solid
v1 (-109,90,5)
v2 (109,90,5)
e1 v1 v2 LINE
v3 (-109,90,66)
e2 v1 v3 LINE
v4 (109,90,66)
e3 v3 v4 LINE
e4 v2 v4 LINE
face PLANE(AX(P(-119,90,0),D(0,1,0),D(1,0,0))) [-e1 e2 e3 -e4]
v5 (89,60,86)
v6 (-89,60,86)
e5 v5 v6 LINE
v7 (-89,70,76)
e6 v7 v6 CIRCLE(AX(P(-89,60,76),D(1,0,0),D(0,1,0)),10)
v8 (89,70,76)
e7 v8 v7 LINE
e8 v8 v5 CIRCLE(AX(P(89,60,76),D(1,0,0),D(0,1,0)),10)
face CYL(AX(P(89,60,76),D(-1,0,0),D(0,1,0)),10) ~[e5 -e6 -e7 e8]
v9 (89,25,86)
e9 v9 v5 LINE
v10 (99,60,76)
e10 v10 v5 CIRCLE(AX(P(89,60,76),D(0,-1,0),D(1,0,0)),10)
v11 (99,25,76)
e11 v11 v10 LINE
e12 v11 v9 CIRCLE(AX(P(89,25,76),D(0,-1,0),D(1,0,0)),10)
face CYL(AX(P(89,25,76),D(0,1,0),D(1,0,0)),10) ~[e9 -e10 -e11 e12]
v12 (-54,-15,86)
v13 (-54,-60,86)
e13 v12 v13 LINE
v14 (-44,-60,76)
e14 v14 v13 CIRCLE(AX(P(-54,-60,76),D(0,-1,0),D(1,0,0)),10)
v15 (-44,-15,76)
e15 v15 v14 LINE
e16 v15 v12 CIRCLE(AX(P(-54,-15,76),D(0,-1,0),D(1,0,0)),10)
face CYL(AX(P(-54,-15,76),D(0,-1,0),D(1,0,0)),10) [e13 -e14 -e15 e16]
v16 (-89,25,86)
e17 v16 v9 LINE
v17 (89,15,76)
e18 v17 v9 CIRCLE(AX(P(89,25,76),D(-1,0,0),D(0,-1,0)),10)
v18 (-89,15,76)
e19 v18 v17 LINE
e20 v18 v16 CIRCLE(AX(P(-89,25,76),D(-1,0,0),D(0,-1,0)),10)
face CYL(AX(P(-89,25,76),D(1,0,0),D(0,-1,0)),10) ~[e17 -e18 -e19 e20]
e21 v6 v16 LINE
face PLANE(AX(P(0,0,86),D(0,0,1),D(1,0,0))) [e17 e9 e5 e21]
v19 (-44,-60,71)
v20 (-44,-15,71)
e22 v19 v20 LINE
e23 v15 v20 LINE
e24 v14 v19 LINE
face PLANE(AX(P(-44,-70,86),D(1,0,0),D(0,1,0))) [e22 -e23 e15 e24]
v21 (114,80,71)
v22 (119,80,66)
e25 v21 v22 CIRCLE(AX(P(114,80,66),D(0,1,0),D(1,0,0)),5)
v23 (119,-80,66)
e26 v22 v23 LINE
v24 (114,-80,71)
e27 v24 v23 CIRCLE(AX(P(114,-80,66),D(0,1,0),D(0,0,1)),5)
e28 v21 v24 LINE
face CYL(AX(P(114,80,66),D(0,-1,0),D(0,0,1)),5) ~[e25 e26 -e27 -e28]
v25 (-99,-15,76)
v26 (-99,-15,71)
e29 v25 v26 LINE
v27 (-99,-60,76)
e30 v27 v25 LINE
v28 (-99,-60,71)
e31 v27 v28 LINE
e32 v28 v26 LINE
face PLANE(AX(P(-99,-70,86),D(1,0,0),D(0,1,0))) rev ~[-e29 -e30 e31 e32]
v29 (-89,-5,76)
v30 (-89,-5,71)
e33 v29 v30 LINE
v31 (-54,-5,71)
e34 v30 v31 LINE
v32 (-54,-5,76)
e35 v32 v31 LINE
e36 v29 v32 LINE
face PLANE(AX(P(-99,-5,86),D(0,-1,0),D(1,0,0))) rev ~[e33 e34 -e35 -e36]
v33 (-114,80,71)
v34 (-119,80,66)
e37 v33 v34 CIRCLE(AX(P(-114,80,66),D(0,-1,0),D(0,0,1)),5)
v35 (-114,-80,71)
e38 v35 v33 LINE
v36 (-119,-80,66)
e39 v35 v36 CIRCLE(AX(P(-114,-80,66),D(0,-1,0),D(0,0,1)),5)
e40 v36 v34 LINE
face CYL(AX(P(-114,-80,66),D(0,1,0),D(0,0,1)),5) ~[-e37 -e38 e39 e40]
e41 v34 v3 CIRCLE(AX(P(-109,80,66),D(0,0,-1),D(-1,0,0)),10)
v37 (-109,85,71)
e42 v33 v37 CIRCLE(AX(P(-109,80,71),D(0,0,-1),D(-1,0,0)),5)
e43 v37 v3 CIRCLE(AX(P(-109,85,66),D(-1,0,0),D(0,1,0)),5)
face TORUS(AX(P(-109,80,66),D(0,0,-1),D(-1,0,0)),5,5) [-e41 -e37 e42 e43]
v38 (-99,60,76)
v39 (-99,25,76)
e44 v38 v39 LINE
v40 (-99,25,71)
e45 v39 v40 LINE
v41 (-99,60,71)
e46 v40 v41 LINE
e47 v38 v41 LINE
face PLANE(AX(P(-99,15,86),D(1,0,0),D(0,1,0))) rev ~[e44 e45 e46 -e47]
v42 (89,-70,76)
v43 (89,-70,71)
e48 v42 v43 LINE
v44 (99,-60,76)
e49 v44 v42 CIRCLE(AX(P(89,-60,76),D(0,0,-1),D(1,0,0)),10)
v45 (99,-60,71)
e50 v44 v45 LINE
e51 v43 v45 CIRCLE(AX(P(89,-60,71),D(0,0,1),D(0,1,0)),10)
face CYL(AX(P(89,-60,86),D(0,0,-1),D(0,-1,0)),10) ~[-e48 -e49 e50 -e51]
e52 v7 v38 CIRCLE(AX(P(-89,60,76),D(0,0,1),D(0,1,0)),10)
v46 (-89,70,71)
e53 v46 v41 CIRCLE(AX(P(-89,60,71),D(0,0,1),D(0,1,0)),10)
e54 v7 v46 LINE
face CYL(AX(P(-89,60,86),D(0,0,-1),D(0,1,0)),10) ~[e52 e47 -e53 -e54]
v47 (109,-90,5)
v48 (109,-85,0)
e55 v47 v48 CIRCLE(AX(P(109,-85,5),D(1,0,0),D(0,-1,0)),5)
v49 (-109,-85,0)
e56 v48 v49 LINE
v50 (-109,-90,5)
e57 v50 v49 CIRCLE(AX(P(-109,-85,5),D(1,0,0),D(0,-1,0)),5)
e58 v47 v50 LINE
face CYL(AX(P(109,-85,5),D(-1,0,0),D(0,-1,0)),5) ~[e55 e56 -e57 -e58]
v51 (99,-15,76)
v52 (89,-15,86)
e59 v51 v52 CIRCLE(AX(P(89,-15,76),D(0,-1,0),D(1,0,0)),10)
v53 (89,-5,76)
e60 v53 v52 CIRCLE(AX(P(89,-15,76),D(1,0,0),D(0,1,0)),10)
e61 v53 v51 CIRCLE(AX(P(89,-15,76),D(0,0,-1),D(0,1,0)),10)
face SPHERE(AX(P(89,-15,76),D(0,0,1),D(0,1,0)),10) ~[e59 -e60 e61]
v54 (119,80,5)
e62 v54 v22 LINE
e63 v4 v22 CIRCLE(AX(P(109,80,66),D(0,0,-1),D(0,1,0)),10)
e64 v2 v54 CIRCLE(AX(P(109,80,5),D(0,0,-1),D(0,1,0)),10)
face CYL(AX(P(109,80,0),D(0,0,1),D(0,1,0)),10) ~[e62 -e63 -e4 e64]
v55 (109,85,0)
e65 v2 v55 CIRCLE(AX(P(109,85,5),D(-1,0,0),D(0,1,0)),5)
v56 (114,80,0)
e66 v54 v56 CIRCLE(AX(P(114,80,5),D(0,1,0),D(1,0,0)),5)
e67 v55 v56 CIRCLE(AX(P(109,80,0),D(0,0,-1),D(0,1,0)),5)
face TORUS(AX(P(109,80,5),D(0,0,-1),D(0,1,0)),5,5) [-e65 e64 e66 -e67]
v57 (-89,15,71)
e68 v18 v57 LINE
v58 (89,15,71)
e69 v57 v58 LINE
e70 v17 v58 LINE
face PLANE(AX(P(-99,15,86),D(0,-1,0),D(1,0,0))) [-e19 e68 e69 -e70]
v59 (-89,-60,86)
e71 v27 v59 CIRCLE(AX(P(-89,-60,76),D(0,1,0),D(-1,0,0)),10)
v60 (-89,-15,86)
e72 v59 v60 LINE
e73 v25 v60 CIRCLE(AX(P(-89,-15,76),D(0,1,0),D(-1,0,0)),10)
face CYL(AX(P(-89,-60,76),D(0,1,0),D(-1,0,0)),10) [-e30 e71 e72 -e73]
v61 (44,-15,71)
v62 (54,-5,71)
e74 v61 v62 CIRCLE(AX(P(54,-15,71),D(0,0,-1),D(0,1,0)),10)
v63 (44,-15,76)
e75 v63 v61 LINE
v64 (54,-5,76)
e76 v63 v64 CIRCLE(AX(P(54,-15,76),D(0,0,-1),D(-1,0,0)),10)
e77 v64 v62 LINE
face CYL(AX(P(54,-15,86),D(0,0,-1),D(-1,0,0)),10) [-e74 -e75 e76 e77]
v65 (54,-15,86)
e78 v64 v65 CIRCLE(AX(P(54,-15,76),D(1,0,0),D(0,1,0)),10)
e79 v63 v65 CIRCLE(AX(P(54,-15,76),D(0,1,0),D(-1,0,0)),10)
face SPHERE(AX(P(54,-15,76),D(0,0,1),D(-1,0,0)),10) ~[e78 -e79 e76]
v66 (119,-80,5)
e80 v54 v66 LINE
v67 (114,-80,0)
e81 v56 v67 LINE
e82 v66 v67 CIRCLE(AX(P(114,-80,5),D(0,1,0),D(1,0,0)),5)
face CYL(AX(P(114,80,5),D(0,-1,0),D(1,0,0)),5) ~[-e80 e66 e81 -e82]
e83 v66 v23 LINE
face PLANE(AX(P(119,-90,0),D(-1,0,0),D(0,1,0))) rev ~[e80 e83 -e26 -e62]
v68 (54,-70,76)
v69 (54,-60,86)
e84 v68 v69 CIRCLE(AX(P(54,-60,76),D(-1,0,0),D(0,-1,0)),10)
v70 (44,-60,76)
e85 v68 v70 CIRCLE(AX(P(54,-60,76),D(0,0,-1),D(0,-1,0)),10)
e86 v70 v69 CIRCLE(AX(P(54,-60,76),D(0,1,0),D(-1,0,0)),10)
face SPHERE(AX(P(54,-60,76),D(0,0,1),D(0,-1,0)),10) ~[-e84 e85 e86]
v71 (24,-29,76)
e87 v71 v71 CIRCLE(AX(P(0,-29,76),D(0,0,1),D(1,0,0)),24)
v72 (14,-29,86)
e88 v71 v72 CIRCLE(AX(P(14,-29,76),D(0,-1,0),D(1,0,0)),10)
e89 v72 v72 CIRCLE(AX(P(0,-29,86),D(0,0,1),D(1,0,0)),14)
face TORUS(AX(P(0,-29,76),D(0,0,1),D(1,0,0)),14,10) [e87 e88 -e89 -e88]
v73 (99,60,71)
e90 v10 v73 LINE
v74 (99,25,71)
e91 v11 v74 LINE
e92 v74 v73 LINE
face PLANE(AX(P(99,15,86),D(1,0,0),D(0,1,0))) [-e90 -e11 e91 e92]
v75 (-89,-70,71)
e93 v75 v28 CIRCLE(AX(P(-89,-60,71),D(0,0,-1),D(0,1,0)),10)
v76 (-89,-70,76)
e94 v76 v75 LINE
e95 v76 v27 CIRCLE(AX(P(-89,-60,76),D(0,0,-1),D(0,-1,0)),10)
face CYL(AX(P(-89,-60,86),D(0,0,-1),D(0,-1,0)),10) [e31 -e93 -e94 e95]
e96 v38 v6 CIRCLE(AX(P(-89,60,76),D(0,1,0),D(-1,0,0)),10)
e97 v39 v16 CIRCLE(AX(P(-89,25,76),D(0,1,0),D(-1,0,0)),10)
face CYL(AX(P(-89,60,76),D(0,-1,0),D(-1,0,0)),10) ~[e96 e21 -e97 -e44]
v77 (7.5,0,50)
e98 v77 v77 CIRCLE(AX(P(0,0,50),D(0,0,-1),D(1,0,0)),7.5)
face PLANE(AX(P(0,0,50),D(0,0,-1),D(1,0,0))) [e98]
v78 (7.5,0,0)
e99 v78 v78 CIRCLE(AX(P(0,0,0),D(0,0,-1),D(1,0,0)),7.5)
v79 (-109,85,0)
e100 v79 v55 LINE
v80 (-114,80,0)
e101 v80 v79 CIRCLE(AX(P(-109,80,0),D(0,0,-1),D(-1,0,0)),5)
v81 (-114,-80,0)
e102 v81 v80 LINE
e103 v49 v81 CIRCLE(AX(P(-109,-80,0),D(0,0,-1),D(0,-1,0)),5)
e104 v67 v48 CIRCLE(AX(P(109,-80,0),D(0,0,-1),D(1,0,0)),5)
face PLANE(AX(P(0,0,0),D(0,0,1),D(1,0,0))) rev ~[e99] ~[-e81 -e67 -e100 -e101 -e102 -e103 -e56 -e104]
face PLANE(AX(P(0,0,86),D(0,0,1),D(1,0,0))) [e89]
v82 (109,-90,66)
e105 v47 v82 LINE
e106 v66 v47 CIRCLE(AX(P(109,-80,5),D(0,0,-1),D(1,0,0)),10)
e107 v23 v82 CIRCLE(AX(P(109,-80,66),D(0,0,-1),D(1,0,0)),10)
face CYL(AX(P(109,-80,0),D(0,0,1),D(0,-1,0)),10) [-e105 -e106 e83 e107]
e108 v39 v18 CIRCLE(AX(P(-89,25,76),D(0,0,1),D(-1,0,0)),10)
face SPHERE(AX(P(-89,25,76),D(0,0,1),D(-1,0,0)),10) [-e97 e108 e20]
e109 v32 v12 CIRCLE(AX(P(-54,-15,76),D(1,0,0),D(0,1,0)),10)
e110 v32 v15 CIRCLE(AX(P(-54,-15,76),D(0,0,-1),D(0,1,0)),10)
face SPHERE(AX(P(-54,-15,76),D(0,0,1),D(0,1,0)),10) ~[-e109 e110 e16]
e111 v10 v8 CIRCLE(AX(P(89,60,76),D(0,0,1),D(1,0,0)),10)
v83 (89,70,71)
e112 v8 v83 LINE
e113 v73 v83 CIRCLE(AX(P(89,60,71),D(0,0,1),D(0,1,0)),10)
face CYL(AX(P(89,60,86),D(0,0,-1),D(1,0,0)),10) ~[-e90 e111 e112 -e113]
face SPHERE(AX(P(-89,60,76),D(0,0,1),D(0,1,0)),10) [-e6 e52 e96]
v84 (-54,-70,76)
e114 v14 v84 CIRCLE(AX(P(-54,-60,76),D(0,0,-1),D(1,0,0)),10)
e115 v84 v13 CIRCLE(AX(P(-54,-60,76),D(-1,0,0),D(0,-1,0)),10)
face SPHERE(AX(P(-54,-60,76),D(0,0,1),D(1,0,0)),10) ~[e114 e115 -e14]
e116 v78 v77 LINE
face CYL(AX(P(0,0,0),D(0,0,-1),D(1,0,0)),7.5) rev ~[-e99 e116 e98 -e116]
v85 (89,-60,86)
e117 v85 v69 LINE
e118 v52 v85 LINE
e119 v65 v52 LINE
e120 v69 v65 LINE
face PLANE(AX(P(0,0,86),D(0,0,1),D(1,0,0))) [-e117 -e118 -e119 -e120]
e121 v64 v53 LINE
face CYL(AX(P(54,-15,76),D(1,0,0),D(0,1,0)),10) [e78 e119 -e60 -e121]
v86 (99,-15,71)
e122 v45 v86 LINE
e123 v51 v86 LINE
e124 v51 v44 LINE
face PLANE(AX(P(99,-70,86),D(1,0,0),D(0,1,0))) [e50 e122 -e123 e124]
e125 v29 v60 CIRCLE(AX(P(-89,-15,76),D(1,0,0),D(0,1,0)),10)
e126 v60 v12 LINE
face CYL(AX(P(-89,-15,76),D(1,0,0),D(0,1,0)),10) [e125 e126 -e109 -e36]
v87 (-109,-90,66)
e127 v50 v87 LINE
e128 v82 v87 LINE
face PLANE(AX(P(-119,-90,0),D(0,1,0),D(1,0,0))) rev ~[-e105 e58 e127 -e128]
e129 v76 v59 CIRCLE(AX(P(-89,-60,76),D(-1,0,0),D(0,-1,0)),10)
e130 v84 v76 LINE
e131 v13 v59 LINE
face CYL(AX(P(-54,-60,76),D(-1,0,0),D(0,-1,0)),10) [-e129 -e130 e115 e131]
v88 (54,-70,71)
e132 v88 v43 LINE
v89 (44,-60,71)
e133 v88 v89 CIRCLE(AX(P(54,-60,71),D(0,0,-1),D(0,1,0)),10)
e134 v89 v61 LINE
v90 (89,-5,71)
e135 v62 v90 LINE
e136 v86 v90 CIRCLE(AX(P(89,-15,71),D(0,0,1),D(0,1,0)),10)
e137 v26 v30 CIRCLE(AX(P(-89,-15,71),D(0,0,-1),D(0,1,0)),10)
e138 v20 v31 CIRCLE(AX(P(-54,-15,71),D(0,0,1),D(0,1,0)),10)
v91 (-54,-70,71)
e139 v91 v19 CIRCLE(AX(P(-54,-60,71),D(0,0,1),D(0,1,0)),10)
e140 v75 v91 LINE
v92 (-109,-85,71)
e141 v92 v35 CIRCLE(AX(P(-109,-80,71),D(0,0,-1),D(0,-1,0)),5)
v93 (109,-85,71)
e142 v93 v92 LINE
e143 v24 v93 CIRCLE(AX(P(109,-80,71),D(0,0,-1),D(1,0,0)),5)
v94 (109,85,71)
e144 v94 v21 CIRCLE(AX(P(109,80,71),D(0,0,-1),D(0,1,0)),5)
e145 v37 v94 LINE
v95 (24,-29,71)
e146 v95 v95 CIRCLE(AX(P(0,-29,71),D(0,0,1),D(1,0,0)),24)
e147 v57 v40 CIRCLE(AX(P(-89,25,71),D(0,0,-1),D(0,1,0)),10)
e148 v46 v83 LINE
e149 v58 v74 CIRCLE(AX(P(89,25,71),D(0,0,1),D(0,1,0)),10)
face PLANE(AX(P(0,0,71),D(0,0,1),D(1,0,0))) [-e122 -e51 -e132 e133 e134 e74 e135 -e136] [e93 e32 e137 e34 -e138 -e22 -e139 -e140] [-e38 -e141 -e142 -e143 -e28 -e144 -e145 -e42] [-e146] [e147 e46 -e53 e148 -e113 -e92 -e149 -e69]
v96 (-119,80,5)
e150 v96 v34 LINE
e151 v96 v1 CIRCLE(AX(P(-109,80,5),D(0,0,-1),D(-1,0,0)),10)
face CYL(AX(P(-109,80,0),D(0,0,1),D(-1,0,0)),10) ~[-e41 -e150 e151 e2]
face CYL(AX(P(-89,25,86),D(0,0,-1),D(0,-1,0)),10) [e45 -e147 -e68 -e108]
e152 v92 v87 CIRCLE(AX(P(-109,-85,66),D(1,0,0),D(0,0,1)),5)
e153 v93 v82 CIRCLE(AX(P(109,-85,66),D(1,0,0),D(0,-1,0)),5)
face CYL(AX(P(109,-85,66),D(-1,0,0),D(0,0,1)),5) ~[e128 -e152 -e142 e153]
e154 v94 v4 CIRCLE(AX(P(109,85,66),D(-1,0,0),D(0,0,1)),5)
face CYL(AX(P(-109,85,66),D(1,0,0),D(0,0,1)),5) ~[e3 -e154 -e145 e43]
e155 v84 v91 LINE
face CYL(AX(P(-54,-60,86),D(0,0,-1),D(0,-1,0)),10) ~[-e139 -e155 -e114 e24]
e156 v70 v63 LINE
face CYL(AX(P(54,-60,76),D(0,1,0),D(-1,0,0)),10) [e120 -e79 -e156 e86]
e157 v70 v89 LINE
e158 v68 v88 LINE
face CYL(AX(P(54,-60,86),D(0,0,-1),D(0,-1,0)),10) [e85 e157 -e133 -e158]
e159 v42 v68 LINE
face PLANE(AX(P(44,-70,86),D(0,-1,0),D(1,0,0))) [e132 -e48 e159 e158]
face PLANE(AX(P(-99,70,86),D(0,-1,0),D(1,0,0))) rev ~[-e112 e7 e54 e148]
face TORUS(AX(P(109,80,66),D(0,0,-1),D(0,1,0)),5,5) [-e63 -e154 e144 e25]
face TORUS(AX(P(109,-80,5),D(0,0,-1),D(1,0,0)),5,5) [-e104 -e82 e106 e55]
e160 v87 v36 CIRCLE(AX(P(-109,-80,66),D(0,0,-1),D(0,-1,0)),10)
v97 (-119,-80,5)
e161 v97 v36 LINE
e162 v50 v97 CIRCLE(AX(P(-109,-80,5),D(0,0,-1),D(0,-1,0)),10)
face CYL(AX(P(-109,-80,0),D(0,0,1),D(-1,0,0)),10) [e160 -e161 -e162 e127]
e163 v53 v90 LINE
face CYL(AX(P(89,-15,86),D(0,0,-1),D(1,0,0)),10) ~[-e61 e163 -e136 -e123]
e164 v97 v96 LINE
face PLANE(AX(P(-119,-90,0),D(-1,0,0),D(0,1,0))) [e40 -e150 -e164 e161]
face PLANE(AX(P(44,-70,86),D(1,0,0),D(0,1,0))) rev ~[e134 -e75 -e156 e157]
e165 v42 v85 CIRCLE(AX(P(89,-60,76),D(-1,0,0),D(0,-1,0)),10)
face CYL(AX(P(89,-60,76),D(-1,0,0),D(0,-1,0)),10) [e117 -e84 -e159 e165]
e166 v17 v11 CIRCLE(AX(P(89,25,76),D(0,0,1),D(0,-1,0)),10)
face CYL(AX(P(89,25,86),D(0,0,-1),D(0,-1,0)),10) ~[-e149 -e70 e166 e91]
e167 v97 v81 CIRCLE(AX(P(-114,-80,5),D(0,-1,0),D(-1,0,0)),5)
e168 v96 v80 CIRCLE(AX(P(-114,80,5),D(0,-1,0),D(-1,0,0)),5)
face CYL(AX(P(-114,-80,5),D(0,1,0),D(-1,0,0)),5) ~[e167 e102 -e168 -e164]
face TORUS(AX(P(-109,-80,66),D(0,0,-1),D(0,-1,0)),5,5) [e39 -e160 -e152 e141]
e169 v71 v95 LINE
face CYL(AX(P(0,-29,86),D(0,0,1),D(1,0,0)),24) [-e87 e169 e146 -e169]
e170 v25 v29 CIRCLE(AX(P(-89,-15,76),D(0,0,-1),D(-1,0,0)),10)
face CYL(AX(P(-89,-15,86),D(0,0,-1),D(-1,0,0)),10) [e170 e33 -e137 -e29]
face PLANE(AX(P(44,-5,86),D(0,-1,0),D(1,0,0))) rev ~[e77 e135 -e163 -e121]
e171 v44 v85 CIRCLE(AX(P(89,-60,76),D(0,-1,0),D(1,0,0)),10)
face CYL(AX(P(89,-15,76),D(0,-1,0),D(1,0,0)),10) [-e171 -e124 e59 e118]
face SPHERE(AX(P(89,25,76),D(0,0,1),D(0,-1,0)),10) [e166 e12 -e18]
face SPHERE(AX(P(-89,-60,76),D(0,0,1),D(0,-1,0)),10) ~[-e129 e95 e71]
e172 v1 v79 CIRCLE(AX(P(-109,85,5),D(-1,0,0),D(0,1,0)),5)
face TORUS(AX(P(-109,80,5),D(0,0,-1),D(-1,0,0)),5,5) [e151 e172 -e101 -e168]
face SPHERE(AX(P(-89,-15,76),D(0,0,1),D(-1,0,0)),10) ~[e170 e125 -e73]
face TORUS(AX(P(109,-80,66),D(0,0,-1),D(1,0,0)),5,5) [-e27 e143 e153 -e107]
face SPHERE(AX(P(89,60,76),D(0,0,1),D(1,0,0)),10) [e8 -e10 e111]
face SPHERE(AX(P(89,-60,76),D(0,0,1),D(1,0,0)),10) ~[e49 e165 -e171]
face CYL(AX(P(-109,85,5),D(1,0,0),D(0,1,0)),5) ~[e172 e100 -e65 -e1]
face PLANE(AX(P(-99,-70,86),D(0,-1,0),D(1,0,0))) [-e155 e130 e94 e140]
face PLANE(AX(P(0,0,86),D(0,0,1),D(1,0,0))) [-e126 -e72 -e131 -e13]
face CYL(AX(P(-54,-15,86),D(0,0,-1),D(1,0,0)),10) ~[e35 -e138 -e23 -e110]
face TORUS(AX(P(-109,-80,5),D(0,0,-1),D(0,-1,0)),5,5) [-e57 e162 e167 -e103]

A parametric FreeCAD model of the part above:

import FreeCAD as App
import Part
import Sketcher

V = App.Vector
Q = App.Units.Quantity


def edges_at(feature, points):
    """Names of the edges that pass closest to the given points."""
    edges = feature.Shape.Edges
    near = lambda p: min(range(len(edges)), key=lambda i: edges[i].distToShape(Part.Vertex(*p))[0])
    return sorted({f"Edge{near(p) + 1}" for p in points})


def add_polygon(sketch, points):
    """Adds a closed chain of lines whose ends are joined by coincident constraints."""
    first, n = sketch.GeometryCount, len(points)
    for a, b in zip(points, points[1:] + points[:1]):
        sketch.addGeometry(Part.LineSegment(App.Vector(*a, 0), App.Vector(*b, 0)), False)
    for i in range(n):
        sketch.addConstraint(Sketcher.Constraint("Coincident", first + i, 2, first + (i + 1) % n, 1))

doc = App.newDocument("Part")
params = doc.addObject("Spreadsheet::Sheet", "Params")
for row, (alias, value) in enumerate([
    ("sketch1_width", "238 mm"),
    ("sketch1_height", "180 mm"),
    ("pad1_length", "86 mm"),
    ("sketch2_diameter", "48 mm"),
    ("sketch2_width", "238 mm"),
    ("sketch2_width2", "55 mm"),
    ("sketch2_width3", "198 mm"),
    ("sketch2_height", "180 mm"),
    ("pocket1_length", "15 mm"),
    ("fillet_radius", "10 mm"),
    ("fillet2_radius", "10 mm"),
    ("fillet3_radius", "5 mm"),
    ("sketch3_diameter", "15 mm"),
    ("pocket2_length", "50 mm"),
], start=1):
    params.set(f"A{row}", alias)
    params.set(f"B{row}", "=" + value)
    params.setAlias(f"B{row}", alias)

body = doc.addObject("PartDesign::Body", "Body")

# Sketch on XY plane
sketch1 = doc.addObject("Sketcher::SketchObject", "Sketch")
body.addObject(sketch1)
sketch1.AttachmentSupport = (doc.XY_Plane, [""])
sketch1.MapMode = "FlatFace"
add_polygon(sketch1, [(-119, 90), (-119, -90), (119, -90), (119, 90)])  # lines 0-3
sketch1.addConstraint([
    Sketcher.Constraint("Vertical", 0),
    Sketcher.Constraint("Horizontal", 1),
    Sketcher.Constraint("Vertical", 2),
    Sketcher.Constraint("Horizontal", 3),
    Sketcher.Constraint("Symmetric", 0, 2, 2, 2, -1, 1),
    Sketcher.Constraint("DistanceX", 1, 1, 1, 2, Q("238 mm")),
    Sketcher.Constraint("DistanceY", 0, 2, 0, 1, Q("180 mm")),
])
sketch1.setExpression("Constraints[9]", "Params.sketch1_width")
sketch1.setExpression("Constraints[10]", "Params.sketch1_height")
pad1 = doc.addObject("PartDesign::Pad", "Pad")
body.addObject(pad1)
pad1.Profile = sketch1
pad1.setExpression("Length", "Params.pad1_length")

# Sketch on XY plane
sketch2 = doc.addObject("Sketcher::SketchObject", "Sketch001")
body.addObject(sketch2)
sketch2.AttachmentSupport = (doc.XY_Plane, [""])
sketch2.MapMode = "FlatFace"
sketch2.AttachmentOffset = App.Placement(V(0, 0, 86), App.Rotation())
add_polygon(sketch2, [(-119, 90), (-119, -90), (119, -90), (119, 90)])  # lines 0-3
add_polygon(sketch2, [(-44, -70), (-99, -70), (-99, -5), (-44, -5)])  # lines 4-7
add_polygon(sketch2, [(99, -70), (44, -70), (44, -5), (99, -5)])  # lines 8-11
sketch2.addGeometry(Part.Circle(V(0, -29, 0), V(0, 0, 1), 24), False)  # 12
add_polygon(sketch2, [(99, 15), (-99, 15), (-99, 70), (99, 70)])  # lines 13-16
sketch2.addConstraint([
    Sketcher.Constraint("Vertical", 0),
    Sketcher.Constraint("Horizontal", 1),
    Sketcher.Constraint("Vertical", 2),
    Sketcher.Constraint("Horizontal", 3),
    Sketcher.Constraint("Horizontal", 4),
    Sketcher.Constraint("Vertical", 5),
    Sketcher.Constraint("Horizontal", 6),
    Sketcher.Constraint("Vertical", 7),
    Sketcher.Constraint("Horizontal", 8),
    Sketcher.Constraint("Vertical", 9),
    Sketcher.Constraint("Horizontal", 10),
    Sketcher.Constraint("Vertical", 11),
    Sketcher.Constraint("Horizontal", 13),
    Sketcher.Constraint("Vertical", 14),
    Sketcher.Constraint("Horizontal", 15),
    Sketcher.Constraint("Vertical", 16),
    Sketcher.Constraint("Symmetric", 0, 2, 2, 2, -1, 1),
    Sketcher.Constraint("Symmetric", 11, 2, 14, 2, -1, 1),
    Sketcher.Constraint("Symmetric", 4, 2, 15, 2, -1, 1),
    Sketcher.Constraint("Symmetric", 6, 2, 9, 2, -2),
    Sketcher.Constraint("PointOnObject", 12, 3, -2),
    Sketcher.Constraint("Vertical", 5, 2, 13, 2),
    Sketcher.Constraint("Equal", 10, 14),
    Sketcher.Constraint("Diameter", 12, Q("48 mm")),
    Sketcher.Constraint("DistanceX", 1, 1, 1, 2, Q("238 mm")),
    Sketcher.Constraint("DistanceX", 4, 2, 4, 1, Q("55 mm")),
    Sketcher.Constraint("DistanceX", 13, 2, 13, 1, Q("198 mm")),
    Sketcher.Constraint("DistanceY", 0, 2, 0, 1, Q("180 mm")),
    Sketcher.Constraint("DistanceY", 5, 1, 5, 2, Q("65 mm")),
    Sketcher.Constraint("DistanceY", 12, 3, -1, 1, Q("29 mm")),
    Sketcher.Constraint("DistanceY", 4, 2, -1, 1, Q("70 mm")),
])
sketch2.setExpression("Constraints[39]", "Params.sketch2_diameter")
sketch2.setExpression("Constraints[40]", "Params.sketch2_width")
sketch2.setExpression("Constraints[41]", "Params.sketch2_width2")
sketch2.setExpression("Constraints[42]", "Params.sketch2_width3")
sketch2.setExpression("Constraints[43]", "Params.sketch2_height")
pocket1 = doc.addObject("PartDesign::Pocket", "Pocket")
body.addObject(pocket1)
pocket1.Profile = sketch2
pocket1.setExpression("Length", "Params.pocket1_length")
doc.recompute()

fillet = doc.addObject("PartDesign::Fillet", "Fillet")
body.addObject(fillet)
fillet.Base = (pocket1, edges_at(pocket1, [
    (-119, -90, 35.5),
    (119, -90, 35.5),
    (-119, 90, 35.5),
    (119, 90, 35.5),
    (-99, 70, 78.5),
    (-99, -5, 78.5),
    (-99, -70, 78.5),
    (-44, -5, 78.5),
    (99, 70, 78.5),
    (99, -5, 78.5),
    (44, -5, 78.5),
    (44, -70, 78.5),
    (-99, 15, 78.5),
    (-44, -70, 78.5),
    (99, -70, 78.5),
    (99, 15, 78.5),
]))
fillet.setExpression("Radius", "Params.fillet_radius")
doc.recompute()

fillet2 = doc.addObject("PartDesign::Fillet", "Fillet001")
body.addObject(fillet2)
fillet2.Base = (fillet, edges_at(fillet, [
    (0, 15, 86),
    (-71.5, -5, 86),
    (-24, -29, 86),
    (71.5, -5, 86),
]))
fillet2.setExpression("Radius", "Params.fillet2_radius")
doc.recompute()

fillet3 = doc.addObject("PartDesign::Fillet", "Fillet002")
body.addObject(fillet3)
fillet3.Base = (fillet2, edges_at(fillet2, [(-119, 0, 71), (-119, 0, 0)]))
fillet3.setExpression("Radius", "Params.fillet3_radius")

# Sketch on XY plane
sketch3 = doc.addObject("Sketcher::SketchObject", "Sketch002")
body.addObject(sketch3)
sketch3.AttachmentSupport = (doc.XY_Plane, [""])
sketch3.MapMode = "FlatFace"
sketch3.addGeometry(Part.Circle(V(0, 0, 0), V(0, 0, 1), 8), False)
sketch3.addConstraint([
    Sketcher.Constraint("Coincident", 0, 3, -1, 1),
    Sketcher.Constraint("Diameter", 0, Q("15 mm")),
])
sketch3.setExpression("Constraints[1]", "Params.sketch3_diameter")
pocket2 = doc.addObject("PartDesign::Pocket", "Pocket001")
body.addObject(pocket2)
pocket2.Profile = sketch3
pocket2.setExpression("Length", "Params.pocket2_length")
pocket2.Reversed = True

doc.recompute()
